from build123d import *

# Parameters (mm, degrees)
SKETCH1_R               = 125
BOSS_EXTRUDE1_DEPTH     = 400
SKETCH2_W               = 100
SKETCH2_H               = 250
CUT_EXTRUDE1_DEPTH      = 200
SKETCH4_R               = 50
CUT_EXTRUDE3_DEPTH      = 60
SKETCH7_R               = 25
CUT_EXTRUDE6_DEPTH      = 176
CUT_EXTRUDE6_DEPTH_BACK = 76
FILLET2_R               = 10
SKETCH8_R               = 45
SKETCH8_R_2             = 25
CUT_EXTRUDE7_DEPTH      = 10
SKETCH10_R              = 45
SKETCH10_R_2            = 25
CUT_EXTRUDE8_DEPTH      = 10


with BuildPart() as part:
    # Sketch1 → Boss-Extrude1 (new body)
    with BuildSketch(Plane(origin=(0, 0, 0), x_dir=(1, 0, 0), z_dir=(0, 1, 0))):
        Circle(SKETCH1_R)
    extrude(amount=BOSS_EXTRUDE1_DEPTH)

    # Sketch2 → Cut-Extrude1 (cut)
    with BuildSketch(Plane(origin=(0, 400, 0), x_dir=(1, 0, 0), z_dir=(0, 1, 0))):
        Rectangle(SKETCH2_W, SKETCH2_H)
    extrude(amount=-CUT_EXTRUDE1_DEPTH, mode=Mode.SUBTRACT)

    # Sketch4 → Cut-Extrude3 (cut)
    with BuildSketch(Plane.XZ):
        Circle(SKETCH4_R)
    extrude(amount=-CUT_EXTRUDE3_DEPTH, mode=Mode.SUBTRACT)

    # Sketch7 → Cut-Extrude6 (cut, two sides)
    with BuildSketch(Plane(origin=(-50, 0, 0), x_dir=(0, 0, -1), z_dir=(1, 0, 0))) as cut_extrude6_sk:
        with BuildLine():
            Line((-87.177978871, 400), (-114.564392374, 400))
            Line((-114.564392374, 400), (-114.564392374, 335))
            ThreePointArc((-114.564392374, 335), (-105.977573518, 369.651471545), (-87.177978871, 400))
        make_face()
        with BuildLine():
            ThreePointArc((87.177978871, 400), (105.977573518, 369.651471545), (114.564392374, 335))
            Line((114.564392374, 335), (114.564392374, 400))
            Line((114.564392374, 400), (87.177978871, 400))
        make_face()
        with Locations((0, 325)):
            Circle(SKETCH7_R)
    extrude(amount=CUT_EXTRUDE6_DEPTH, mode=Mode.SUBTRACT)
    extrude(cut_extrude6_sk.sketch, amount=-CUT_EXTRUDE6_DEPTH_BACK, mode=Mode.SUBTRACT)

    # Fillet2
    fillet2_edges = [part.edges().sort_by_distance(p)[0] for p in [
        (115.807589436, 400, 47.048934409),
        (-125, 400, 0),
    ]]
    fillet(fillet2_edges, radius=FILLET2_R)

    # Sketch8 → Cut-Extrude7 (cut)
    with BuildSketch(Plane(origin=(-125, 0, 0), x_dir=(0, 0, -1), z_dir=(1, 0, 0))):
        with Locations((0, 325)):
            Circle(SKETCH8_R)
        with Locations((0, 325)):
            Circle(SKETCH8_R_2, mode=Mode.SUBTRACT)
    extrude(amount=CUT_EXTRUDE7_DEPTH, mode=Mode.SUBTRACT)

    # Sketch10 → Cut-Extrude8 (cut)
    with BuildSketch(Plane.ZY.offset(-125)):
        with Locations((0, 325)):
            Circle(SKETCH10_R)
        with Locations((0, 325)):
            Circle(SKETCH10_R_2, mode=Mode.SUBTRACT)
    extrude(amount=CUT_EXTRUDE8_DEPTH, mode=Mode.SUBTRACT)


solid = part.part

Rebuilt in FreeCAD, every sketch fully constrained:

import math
import FreeCAD as App
import Part
import Sketcher
from FreeCAD import Vector


def edges_at(feature, points):
    """Names of the edges that pass closest to the given points."""
    edges = feature.Shape.Edges
    near = lambda p: min(range(len(edges)), key=lambda i: edges[i].distToShape(Part.Vertex(*p))[0])
    return sorted({f"Edge{near(p) + 1}" for p in points})


def add_polygon(sketch, points):
    """Adds a closed chain of lines whose ends are joined by coincident constraints."""
    first, n = sketch.GeometryCount, len(points)
    for a, b in zip(points, points[1:] + points[:1]):
        sketch.addGeometry(Part.LineSegment(App.Vector(*a, 0), App.Vector(*b, 0)), False)
    for i in range(n):
        sketch.addConstraint(Sketcher.Constraint("Coincident", first + i, 2, first + (i + 1) % n, 1))

doc = App.newDocument("Part")
params = doc.addObject("Spreadsheet::Sheet", "Params")
for row, (alias, value) in enumerate([
    ("sketch1_diameter", "250 mm"),
    ("pad1_length", "400 mm"),
    ("sketch2_width", "100 mm"),
    ("sketch2_height", "250 mm"),
    ("pocket1_length", "200 mm"),
    ("sketch3_diameter", "100 mm"),
    ("pocket2_length", "60 mm"),
    ("sketch4_diameter", "50 mm"),
    ("sketch4_radius", "115 mm"),
    ("sketch4_width", "65 mm"),
    ("fillet_radius", "10 mm"),
    ("sketch5_diameter", "90 mm"),
    ("sketch5_diameter2", "50 mm"),
    ("pocket4_length", "10 mm"),
    ("sketch6_diameter", "90 mm"),
    ("sketch6_diameter2", "50 mm"),
    ("pocket5_length", "10 mm"),
], start=1):
    params.set(f"A{row}", alias)
    params.set(f"B{row}", "=" + value)
    params.setAlias(f"B{row}", alias)

body = doc.addObject("PartDesign::Body", "Body")

# Sketch on XZ plane
sketch1 = body.newObject("Sketcher::SketchObject", "Sketch")
sketch1.AttachmentSupport = (doc.getObject("XZ_Plane"), [""])
sketch1.MapMode = "FlatFace"
sketch1.addGeometry(Part.Circle(Vector(0, 0, 0), Vector(0, 0, 1), 125), False)
sketch1.addConstraint([
    Sketcher.Constraint("Coincident", 0, 3, -1, 1),
    Sketcher.Constraint("Diameter", 0, 250.0),
])
sketch1.setExpression("Constraints[1]", "Params.sketch1_diameter")
pad1 = body.newObject("PartDesign::Pad", "Pad")
pad1.Profile = sketch1
pad1.setExpression("Length", "Params.pad1_length")
pad1.Reversed = True

# Sketch on XZ plane
sketch2 = body.newObject("Sketcher::SketchObject", "Sketch001")
sketch2.AttachmentSupport = (doc.getObject("XZ_Plane"), [""])
sketch2.MapMode = "FlatFace"
sketch2.AttachmentOffset = App.Placement(Vector(0, 0, -400), App.Rotation())
add_polygon(sketch2, [(-50, -125), (-50, 125), (50, 125), (50, -125)])  # lines 0-3
sketch2.addConstraint([
    Sketcher.Constraint("Vertical", 0),
    Sketcher.Constraint("Horizontal", 1),
    Sketcher.Constraint("Vertical", 2),
    Sketcher.Constraint("Horizontal", 3),
    Sketcher.Constraint("Symmetric", 0, 2, 2, 2, -1, 1),
    Sketcher.Constraint("DistanceX", 1, 1, 1, 2, 100.0),
    Sketcher.Constraint("DistanceY", 0, 1, 0, 2, 250.0),
])
sketch2.setExpression("Constraints[9]", "Params.sketch2_width")
sketch2.setExpression("Constraints[10]", "Params.sketch2_height")
pocket1 = body.newObject("PartDesign::Pocket", "Pocket")
pocket1.Profile = sketch2
pocket1.setExpression("Length", "Params.pocket1_length")
pocket1.Reversed = True

# Sketch on XZ plane
sketch3 = body.newObject("Sketcher::SketchObject", "Sketch002")
sketch3.AttachmentSupport = (doc.getObject("XZ_Plane"), [""])
sketch3.MapMode = "FlatFace"
sketch3.addGeometry(Part.Circle(Vector(0, 0, 0), Vector(0, 0, 1), 50), False)
sketch3.addConstraint([
    Sketcher.Constraint("Coincident", 0, 3, -1, 1),
    Sketcher.Constraint("Diameter", 0, 100.0),
])
sketch3.setExpression("Constraints[1]", "Params.sketch3_diameter")
pocket2 = body.newObject("PartDesign::Pocket", "Pocket001")
pocket2.Profile = sketch3
pocket2.setExpression("Length", "Params.pocket2_length")

# Sketch on YZ plane
sketch4 = body.newObject("Sketcher::SketchObject", "Sketch003")
sketch4.AttachmentSupport = (doc.getObject("YZ_Plane"), [""])
sketch4.MapMode = "FlatFace"
sketch4.AttachmentOffset = App.Placement(Vector(0, 0, -50), App.Rotation())
sketch4.addGeometry([
    Part.LineSegment(Vector(400, 87, 0), Vector(400, 115, 0)),  # 0
    Part.LineSegment(Vector(400, 115, 0), Vector(335, 115, 0)),  # 1
    Part.ArcOfCircle(Part.Circle(Vector(325, 0, 0), Vector(0, 0, 1), 115), math.radians(49), math.radians(85)),  # 2
    Part.ArcOfCircle(Part.Circle(Vector(325, 0, 0), Vector(0, 0, 1), 115), math.radians(-85), math.radians(-49)),  # 3
    Part.LineSegment(Vector(335, -115, 0), Vector(400, -115, 0)),  # 4
    Part.LineSegment(Vector(400, -115, 0), Vector(400, -87, 0)),  # 5
    Part.Circle(Vector(325, 0, 0), Vector(0, 0, 1), 25),  # 6
], False)
sketch4.addConstraint([
    Sketcher.Constraint("Coincident", 0, 2, 1, 1),
    Sketcher.Constraint("Coincident", 1, 2, 2, 2),
    Sketcher.Constraint("Coincident", 2, 1, 0, 1),
    Sketcher.Constraint("Coincident", 3, 1, 4, 1),
    Sketcher.Constraint("Coincident", 4, 2, 5, 1),
    Sketcher.Constraint("Coincident", 5, 2, 3, 2),
    Sketcher.Constraint("Vertical", 0),
    Sketcher.Constraint("Horizontal", 1),
    Sketcher.Constraint("Horizontal", 4),
    Sketcher.Constraint("Vertical", 5),
    Sketcher.Constraint("Coincident", 3, 3, 2, 3),
    Sketcher.Constraint("Coincident", 6, 3, 2, 3),
    Sketcher.Constraint("Equal", 2, 3),
    Sketcher.Constraint("Symmetric", 1, 2, 3, 1, -1),
    Sketcher.Constraint("Vertical", 2, 1, 4, 2),
    Sketcher.Constraint("Diameter", 6, 50.0),
    Sketcher.Constraint("Radius", 2, 115.0),
    Sketcher.Constraint("DistanceX", 1, 2, 1, 1, 65.0),
    Sketcher.Constraint("DistanceX", -1, 1, 2, 3, 325.0),
    Sketcher.Constraint("DistanceX", -1, 1, 0, 2, 400.0),
])
sketch4.setExpression("Constraints[15]", "Params.sketch4_diameter")
sketch4.setExpression("Constraints[16]", "Params.sketch4_radius")
sketch4.setExpression("Constraints[17]", "Params.sketch4_width")
pocket3 = body.newObject("PartDesign::Pocket", "Pocket002")
pocket3.Profile = sketch4
pocket3.Type = "ThroughAll"
pocket3.Midplane = True
doc.recompute()

fillet = body.newObject("PartDesign::Fillet", "Fillet")
fillet.Base = (pocket3, edges_at(pocket3, [(115.808, 400, 47.049), (-125, 400, 0)]))
fillet.setExpression("Radius", "Params.fillet_radius")

# Sketch on YZ plane
sketch5 = body.newObject("Sketcher::SketchObject", "Sketch004")
sketch5.AttachmentSupport = (doc.getObject("YZ_Plane"), [""])
sketch5.MapMode = "FlatFace"
sketch5.AttachmentOffset = App.Placement(Vector(0, 0, -125), App.Rotation())
sketch5.addGeometry([
    Part.Circle(Vector(325, 0, 0), Vector(0, 0, 1), 45),
    Part.Circle(Vector(325, 0, 0), Vector(0, 0, 1), 25),
], False)
sketch5.addConstraint([
    Sketcher.Constraint("Coincident", 1, 3, 0, 3),
    Sketcher.Constraint("PointOnObject", 0, 3, -1),
    Sketcher.Constraint("Diameter", 0, 90.0),
    Sketcher.Constraint("Diameter", 1, 50.0),
    Sketcher.Constraint("DistanceX", -1, 1, 0, 3, 325.0),
])
sketch5.setExpression("Constraints[2]", "Params.sketch5_diameter")
sketch5.setExpression("Constraints[3]", "Params.sketch5_diameter2")
pocket4 = body.newObject("PartDesign::Pocket", "Pocket003")
pocket4.Profile = sketch5
pocket4.setExpression("Length", "Params.pocket4_length")
pocket4.Reversed = True

# Sketch on YZ plane
sketch6 = body.newObject("Sketcher::SketchObject", "Sketch005")
sketch6.AttachmentSupport = (doc.getObject("YZ_Plane"), [""])
sketch6.MapMode = "FlatFace"
sketch6.AttachmentOffset = App.Placement(Vector(0, 0, 125), App.Rotation())
sketch6.addGeometry([
    Part.Circle(Vector(325, 0, 0), Vector(0, 0, 1), 45),
    Part.Circle(Vector(325, 0, 0), Vector(0, 0, 1), 25),
], False)
sketch6.addConstraint([
    Sketcher.Constraint("Coincident", 1, 3, 0, 3),
    Sketcher.Constraint("PointOnObject", 0, 3, -1),
    Sketcher.Constraint("Diameter", 0, 90.0),
    Sketcher.Constraint("Diameter", 1, 50.0),
    Sketcher.Constraint("DistanceX", -1, 1, 0, 3, 325.0),
])
sketch6.setExpression("Constraints[2]", "Params.sketch6_diameter")
sketch6.setExpression("Constraints[3]", "Params.sketch6_diameter2")
pocket5 = body.newObject("PartDesign::Pocket", "Pocket004")
pocket5.Profile = sketch6
pocket5.setExpression("Length", "Params.pocket5_length")

doc.recompute()
